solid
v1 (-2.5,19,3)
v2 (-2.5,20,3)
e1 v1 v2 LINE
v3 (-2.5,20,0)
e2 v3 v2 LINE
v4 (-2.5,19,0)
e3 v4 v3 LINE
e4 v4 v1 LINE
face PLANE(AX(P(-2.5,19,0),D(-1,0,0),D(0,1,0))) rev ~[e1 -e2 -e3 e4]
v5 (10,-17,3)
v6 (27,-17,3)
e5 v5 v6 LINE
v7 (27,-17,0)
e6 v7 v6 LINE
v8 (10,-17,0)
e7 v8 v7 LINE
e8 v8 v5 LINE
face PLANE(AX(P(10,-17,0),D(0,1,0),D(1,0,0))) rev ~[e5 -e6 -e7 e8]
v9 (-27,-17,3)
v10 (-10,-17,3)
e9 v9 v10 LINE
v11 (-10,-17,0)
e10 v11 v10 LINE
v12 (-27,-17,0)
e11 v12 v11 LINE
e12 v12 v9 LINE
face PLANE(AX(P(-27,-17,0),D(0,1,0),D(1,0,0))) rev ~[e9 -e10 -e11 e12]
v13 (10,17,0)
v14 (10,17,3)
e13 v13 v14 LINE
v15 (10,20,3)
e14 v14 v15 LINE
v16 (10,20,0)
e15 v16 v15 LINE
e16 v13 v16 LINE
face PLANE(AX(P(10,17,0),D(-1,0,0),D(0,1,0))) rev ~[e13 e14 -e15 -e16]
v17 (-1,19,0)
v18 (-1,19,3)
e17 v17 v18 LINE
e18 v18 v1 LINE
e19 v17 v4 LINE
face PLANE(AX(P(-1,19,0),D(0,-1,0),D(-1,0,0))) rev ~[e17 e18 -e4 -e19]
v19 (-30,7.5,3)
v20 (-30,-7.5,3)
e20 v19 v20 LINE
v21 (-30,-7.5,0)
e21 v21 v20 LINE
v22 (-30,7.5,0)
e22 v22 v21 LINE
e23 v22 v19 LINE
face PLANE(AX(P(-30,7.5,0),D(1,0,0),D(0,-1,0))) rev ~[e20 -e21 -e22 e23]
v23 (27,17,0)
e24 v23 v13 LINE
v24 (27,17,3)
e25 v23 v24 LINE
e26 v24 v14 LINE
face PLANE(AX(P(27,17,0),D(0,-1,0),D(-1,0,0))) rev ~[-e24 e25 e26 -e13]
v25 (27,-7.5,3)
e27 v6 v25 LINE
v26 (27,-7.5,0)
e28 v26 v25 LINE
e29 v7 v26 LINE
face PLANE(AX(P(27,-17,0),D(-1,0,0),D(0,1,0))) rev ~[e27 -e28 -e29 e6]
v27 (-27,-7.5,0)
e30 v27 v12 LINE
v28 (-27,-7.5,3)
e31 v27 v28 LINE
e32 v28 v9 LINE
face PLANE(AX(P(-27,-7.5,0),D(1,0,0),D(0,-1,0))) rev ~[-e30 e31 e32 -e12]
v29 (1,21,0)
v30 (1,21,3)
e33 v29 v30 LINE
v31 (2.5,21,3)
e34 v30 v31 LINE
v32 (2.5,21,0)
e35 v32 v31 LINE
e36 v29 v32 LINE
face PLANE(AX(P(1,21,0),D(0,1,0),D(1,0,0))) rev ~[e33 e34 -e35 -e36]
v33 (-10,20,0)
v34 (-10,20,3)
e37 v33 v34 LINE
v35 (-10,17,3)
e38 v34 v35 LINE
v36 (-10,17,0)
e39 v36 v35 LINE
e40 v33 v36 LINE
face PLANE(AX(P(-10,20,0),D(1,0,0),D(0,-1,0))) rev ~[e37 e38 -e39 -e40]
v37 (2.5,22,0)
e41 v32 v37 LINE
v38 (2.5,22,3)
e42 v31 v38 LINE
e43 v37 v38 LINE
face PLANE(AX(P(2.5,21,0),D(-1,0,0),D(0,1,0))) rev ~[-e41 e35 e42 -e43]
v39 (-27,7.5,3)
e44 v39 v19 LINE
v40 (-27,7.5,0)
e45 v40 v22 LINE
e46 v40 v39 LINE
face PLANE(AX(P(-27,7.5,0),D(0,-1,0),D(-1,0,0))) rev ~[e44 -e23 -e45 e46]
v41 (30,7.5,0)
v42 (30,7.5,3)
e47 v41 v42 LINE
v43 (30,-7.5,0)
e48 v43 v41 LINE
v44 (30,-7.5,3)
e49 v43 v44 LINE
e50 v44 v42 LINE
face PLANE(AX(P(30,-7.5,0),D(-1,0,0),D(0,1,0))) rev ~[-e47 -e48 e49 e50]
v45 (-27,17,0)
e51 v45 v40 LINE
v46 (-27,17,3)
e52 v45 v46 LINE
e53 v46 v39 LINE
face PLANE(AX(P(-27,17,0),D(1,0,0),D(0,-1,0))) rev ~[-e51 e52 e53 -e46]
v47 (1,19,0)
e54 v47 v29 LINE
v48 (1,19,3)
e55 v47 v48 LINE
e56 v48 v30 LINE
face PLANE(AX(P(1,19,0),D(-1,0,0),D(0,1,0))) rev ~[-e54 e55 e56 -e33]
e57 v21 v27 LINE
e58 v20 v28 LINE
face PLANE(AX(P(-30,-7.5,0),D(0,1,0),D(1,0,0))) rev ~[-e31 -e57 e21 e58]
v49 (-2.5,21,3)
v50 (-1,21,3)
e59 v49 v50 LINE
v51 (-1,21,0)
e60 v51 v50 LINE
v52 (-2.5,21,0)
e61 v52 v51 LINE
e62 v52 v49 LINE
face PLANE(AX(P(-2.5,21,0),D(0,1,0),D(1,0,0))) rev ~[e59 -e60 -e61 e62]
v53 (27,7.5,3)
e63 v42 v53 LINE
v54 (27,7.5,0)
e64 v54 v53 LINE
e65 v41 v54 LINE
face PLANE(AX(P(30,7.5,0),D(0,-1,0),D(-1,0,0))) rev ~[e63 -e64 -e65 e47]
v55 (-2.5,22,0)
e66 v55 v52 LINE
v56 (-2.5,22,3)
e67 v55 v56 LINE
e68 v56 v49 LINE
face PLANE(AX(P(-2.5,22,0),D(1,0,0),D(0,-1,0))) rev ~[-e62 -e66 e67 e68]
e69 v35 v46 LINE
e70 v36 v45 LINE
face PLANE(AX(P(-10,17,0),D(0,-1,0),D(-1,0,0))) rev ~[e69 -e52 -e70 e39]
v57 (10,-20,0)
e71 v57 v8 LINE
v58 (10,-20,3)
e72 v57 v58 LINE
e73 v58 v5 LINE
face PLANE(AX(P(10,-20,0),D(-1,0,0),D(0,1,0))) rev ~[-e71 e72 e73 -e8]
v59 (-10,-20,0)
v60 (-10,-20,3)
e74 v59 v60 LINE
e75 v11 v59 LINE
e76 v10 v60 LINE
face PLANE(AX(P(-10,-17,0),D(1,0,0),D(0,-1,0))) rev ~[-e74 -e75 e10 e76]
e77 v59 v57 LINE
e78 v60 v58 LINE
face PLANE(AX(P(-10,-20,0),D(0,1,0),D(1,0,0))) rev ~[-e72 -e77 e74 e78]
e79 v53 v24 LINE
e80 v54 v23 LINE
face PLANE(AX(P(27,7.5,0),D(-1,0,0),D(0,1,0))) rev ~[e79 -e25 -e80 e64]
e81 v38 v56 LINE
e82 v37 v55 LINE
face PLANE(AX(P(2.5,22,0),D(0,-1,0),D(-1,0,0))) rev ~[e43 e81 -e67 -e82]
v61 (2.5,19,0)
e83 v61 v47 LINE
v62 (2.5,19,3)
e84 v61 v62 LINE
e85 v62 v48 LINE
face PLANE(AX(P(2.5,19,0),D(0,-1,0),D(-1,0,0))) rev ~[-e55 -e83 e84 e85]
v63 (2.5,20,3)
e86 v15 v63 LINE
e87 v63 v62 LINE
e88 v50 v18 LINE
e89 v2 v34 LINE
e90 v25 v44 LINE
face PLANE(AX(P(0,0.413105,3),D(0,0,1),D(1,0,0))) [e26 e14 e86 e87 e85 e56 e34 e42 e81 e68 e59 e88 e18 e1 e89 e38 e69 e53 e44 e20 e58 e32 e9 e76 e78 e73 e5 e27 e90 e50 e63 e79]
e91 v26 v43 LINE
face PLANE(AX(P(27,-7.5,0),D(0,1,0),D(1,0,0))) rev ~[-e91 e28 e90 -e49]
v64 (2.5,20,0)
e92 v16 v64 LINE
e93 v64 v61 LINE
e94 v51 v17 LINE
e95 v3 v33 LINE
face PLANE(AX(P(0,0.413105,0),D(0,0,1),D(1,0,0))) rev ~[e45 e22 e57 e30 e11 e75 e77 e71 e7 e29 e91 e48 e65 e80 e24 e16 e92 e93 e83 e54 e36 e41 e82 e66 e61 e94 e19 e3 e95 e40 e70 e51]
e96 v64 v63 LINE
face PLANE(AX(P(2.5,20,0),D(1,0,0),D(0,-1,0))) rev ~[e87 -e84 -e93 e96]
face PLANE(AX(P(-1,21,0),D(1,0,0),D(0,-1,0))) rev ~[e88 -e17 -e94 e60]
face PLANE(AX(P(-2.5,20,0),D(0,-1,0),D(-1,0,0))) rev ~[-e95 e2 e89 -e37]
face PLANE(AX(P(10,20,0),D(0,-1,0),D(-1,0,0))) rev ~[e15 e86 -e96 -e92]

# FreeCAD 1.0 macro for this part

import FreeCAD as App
import Part
import Sketcher
from FreeCAD import Vector
Q = App.Units.Quantity


def add_polygon(sketch, points):
    """Adds a closed chain of lines whose ends are joined by coincident constraints."""
    first, n = sketch.GeometryCount, len(points)
    for a, b in zip(points, points[1:] + points[:1]):
        sketch.addGeometry(Part.LineSegment(App.Vector(*a, 0), App.Vector(*b, 0)), False)
    for i in range(n):
        sketch.addConstraint(Sketcher.Constraint("Coincident", first + i, 2, first + (i + 1) % n, 1))

doc = App.newDocument("Part")
params = doc.addObject("Spreadsheet::Sheet", "Params")
for row, (alias, value) in enumerate([
    ("sketch1_width", "5 mm"),
    ("sketch1_width2", "17 mm"),
    ("sketch1_width3", "3 mm"),
    ("sketch1_width4", "20 mm"),
    ("sketch1_height", "1 mm"),
    ("pad1_length", "3 mm"),
], start=1):
    params.set(f"A{row}", alias)
    params.set(f"B{row}", "=" + value)
    params.setAlias(f"B{row}", alias)

body = doc.addObject("PartDesign::Body", "Body")

sketch1 = doc.addObject("Sketcher::SketchObject", "Sketch")
body.addObject(sketch1)
sketch1.AttachmentSupport = (doc.XY_Plane, [""])
sketch1.MapMode = "FlatFace"
add_polygon(sketch1, [(10, 17), (10, 20), (2.5, 20), (2.5, 19), (1, 19), (1, 21), (2.5, 21), (2.5, 22), (-2.5, 22), (-2.5, 21), (-1, 21), (-1, 19), (-2.5, 19), (-2.5, 20), (-10, 20), (-10, 17), (-27, 17), (-27, 7.5), (-30, 7.5), (-30, -7.5), (-27, -7.5), (-27, -17), (-10, -17), (-10, -20), (10, -20), (10, -17), (27, -17), (27, -7.5), (30, -7.5), (30, 7.5), (27, 7.5), (27, 17)])
sketch1.addConstraint([
    Sketcher.Constraint("Vertical", 0),
    Sketcher.Constraint("Horizontal", 1),
    Sketcher.Constraint("Vertical", 2),
    Sketcher.Constraint("Horizontal", 3),
    Sketcher.Constraint("Vertical", 4),
    Sketcher.Constraint("Horizontal", 5),
    Sketcher.Constraint("Vertical", 6),
    Sketcher.Constraint("Horizontal", 7),
    Sketcher.Constraint("Vertical", 8),
    Sketcher.Constraint("Horizontal", 9),
    Sketcher.Constraint("Vertical", 10),
    Sketcher.Constraint("Horizontal", 11),
    Sketcher.Constraint("Vertical", 12),
    Sketcher.Constraint("Horizontal", 13),
    Sketcher.Constraint("Vertical", 14),
    Sketcher.Constraint("Horizontal", 15),
    Sketcher.Constraint("Vertical", 16),
    Sketcher.Constraint("Horizontal", 17),
    Sketcher.Constraint("Vertical", 18),
    Sketcher.Constraint("Horizontal", 19),
    Sketcher.Constraint("Vertical", 20),
    Sketcher.Constraint("Horizontal", 21),
    Sketcher.Constraint("Vertical", 22),
    Sketcher.Constraint("Horizontal", 23),
    Sketcher.Constraint("Vertical", 24),
    Sketcher.Constraint("Horizontal", 25),
    Sketcher.Constraint("Vertical", 26),
    Sketcher.Constraint("Horizontal", 27),
    Sketcher.Constraint("Vertical", 28),
    Sketcher.Constraint("Horizontal", 29),
    Sketcher.Constraint("Vertical", 30),
    Sketcher.Constraint("Horizontal", 31),
    Sketcher.Constraint("Symmetric", 0, 2, 22, 2, -1, 1),
    Sketcher.Constraint("Symmetric", 13, 2, 23, 2, -1, 1),
    Sketcher.Constraint("Symmetric", 15, 2, 25, 2, -1, 1),
    Sketcher.Constraint("Symmetric", 17, 2, 27, 2, -1, 1),
    Sketcher.Constraint("Symmetric", 19, 2, 29, 2, -1, 1),
    Sketcher.Constraint("Symmetric", 5, 2, 8, 2, -2),
    Sketcher.Constraint("Symmetric", 3, 2, 10, 2, -2),
    Sketcher.Constraint("Symmetric", 21, 2, 24, 2, -2),
    Sketcher.Constraint("Symmetric", 19, 2, 26, 2, -2),
    Sketcher.Constraint("Horizontal", 15, 2, 30, 2),
    Sketcher.Constraint("Vertical", 2, 2, 5, 2),
    Sketcher.Constraint("Vertical", 8, 2, 11, 2),
    Sketcher.Constraint("Equal", 29, 0),
    Sketcher.Constraint("Equal", 2, 6),
    Sketcher.Constraint("DistanceX", 7, 2, 7, 1, Q("5 mm")),
    Sketcher.Constraint("DistanceX", 15, 2, 15, 1, Q("17 mm")),
    Sketcher.Constraint("DistanceX", 17, 2, 17, 1, Q("3 mm")),
    Sketcher.Constraint("DistanceX", 23, 1, 23, 2, Q("20 mm")),
    Sketcher.Constraint("DistanceY", 2, 2, 2, 1, Q("1 mm")),
    Sketcher.Constraint("DistanceY", 4, 1, 4, 2, Q("2 mm")),
    Sketcher.Constraint("DistanceY", 18, 2, 18, 1, Q("15 mm")),
    Sketcher.Constraint("DistanceX", 3, 2, 3, 1, Q("1.5 mm")),
    Sketcher.Constraint("DistanceY", 16, 2, 16, 1, Q("9.5 mm")),
])
sketch1.setExpression("Constraints[78]", "Params.sketch1_width")
sketch1.setExpression("Constraints[79]", "Params.sketch1_width2")
sketch1.setExpression("Constraints[80]", "Params.sketch1_width3")
sketch1.setExpression("Constraints[81]", "Params.sketch1_width4")
sketch1.setExpression("Constraints[82]", "Params.sketch1_height")
pad1 = doc.addObject("PartDesign::Pad", "Pad")
body.addObject(pad1)
pad1.Profile = sketch1
pad1.setExpression("Length", "Params.pad1_length")

doc.recompute()
